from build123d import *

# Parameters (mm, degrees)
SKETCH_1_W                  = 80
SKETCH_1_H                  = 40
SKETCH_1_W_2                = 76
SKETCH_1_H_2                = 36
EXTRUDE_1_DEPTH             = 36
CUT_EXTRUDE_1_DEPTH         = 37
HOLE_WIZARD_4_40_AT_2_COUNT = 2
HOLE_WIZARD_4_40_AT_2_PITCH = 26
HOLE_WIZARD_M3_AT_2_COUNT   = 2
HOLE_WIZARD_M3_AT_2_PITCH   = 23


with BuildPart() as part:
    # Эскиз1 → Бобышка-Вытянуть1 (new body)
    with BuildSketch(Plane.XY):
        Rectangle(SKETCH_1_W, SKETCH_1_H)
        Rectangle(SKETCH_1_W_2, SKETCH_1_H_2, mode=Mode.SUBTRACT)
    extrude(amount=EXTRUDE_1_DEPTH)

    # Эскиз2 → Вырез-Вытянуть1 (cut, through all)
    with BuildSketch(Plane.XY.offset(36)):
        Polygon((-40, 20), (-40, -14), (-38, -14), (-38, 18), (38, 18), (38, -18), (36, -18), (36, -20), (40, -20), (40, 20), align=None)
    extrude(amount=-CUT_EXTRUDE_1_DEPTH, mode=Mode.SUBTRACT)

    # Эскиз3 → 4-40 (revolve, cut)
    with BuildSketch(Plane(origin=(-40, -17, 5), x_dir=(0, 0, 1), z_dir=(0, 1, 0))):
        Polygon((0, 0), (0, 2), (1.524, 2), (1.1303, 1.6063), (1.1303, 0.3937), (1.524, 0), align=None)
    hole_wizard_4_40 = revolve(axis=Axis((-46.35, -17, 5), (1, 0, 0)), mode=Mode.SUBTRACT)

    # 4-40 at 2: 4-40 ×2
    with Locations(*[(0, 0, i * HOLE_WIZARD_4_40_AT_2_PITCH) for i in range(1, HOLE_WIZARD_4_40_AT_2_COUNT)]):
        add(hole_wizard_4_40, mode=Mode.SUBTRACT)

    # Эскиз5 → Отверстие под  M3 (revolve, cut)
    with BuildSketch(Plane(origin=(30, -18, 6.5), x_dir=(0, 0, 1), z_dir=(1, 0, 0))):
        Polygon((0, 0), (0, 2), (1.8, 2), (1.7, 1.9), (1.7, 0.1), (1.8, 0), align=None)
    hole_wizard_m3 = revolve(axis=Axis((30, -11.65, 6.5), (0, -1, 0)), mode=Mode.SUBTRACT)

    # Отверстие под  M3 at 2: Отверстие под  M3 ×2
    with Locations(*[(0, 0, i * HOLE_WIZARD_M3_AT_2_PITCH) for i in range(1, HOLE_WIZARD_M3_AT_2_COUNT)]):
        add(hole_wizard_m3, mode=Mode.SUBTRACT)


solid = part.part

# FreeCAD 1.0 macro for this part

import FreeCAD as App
import Part
import Sketcher
Q = App.Units.Quantity

doc = App.newDocument("Part")
body = doc.addObject("PartDesign::Body", "Body")

# Sketch on XY plane
sketch1 = body.newObject("Sketcher::SketchObject", "Sketch")
sketch1.AttachmentSupport = (doc.getObject("XY_Plane"), [""])
sketch1.MapMode = "FlatFace"
sketch1.addGeometry(Part.LineSegment(App.Vector(-40, 20, 0), App.Vector(-40, -20, 0)), False)
sketch1.addGeometry(Part.LineSegment(App.Vector(-40, -20, 0), App.Vector(40, -20, 0)), False)
sketch1.addGeometry(Part.LineSegment(App.Vector(40, -20, 0), App.Vector(40, 20, 0)), False)
sketch1.addGeometry(Part.LineSegment(App.Vector(40, 20, 0), App.Vector(-40, 20, 0)), False)
sketch1.addGeometry(Part.LineSegment(App.Vector(38, -18, 0), App.Vector(-38, -18, 0)), False)
sketch1.addGeometry(Part.LineSegment(App.Vector(-38, -18, 0), App.Vector(-38, 18, 0)), False)
sketch1.addGeometry(Part.LineSegment(App.Vector(-38, 18, 0), App.Vector(38, 18, 0)), False)
sketch1.addGeometry(Part.LineSegment(App.Vector(38, 18, 0), App.Vector(38, -18, 0)), False)
sketch1.addConstraint(Sketcher.Constraint("Coincident", 0, 2, 1, 1))
sketch1.addConstraint(Sketcher.Constraint("Coincident", 1, 2, 2, 1))
sketch1.addConstraint(Sketcher.Constraint("Coincident", 2, 2, 3, 1))
sketch1.addConstraint(Sketcher.Constraint("Coincident", 3, 2, 0, 1))
sketch1.addConstraint(Sketcher.Constraint("Coincident", 4, 2, 5, 1))
sketch1.addConstraint(Sketcher.Constraint("Coincident", 5, 2, 6, 1))
sketch1.addConstraint(Sketcher.Constraint("Coincident", 6, 2, 7, 1))
sketch1.addConstraint(Sketcher.Constraint("Coincident", 7, 2, 4, 1))
sketch1.addConstraint(Sketcher.Constraint("Vertical", 0))
sketch1.addConstraint(Sketcher.Constraint("Horizontal", 1))
sketch1.addConstraint(Sketcher.Constraint("Vertical", 2))
sketch1.addConstraint(Sketcher.Constraint("Horizontal", 3))
sketch1.addConstraint(Sketcher.Constraint("Horizontal", 4))
sketch1.addConstraint(Sketcher.Constraint("Vertical", 5))
sketch1.addConstraint(Sketcher.Constraint("Horizontal", 6))
sketch1.addConstraint(Sketcher.Constraint("Vertical", 7))
sketch1.addConstraint(Sketcher.Constraint("Symmetric", 0, 2, 2, 2, -1, 1))
sketch1.addConstraint(Sketcher.Constraint("Symmetric", 4, 2, 6, 2, -1, 1))
sketch1.addConstraint(Sketcher.Constraint("DistanceX", 1, 1, 1, 2, Q("80 mm")))
sketch1.addConstraint(Sketcher.Constraint("DistanceX", 4, 2, 4, 1, Q("76 mm")))
sketch1.addConstraint(Sketcher.Constraint("DistanceY", 0, 2, 0, 1, Q("40 mm")))
sketch1.addConstraint(Sketcher.Constraint("DistanceY", 5, 1, 5, 2, Q("36 mm")))
pad1 = body.newObject("PartDesign::Pad", "Pad")
pad1.Profile = sketch1
pad1.Length = 36

# Sketch on XY plane
sketch2 = body.newObject("Sketcher::SketchObject", "Sketch001")
sketch2.AttachmentSupport = (doc.getObject("XY_Plane"), [""])
sketch2.MapMode = "FlatFace"
sketch2.AttachmentOffset = App.Placement(App.Vector(0, 0, 36), App.Rotation())
sketch2.addGeometry(Part.LineSegment(App.Vector(-40, 20, 0), App.Vector(-40, -14, 0)), False)
sketch2.addGeometry(Part.LineSegment(App.Vector(-40, -14, 0), App.Vector(-38, -14, 0)), False)
sketch2.addGeometry(Part.LineSegment(App.Vector(-38, -14, 0), App.Vector(-38, 18, 0)), False)
sketch2.addGeometry(Part.LineSegment(App.Vector(-38, 18, 0), App.Vector(38, 18, 0)), False)
sketch2.addGeometry(Part.LineSegment(App.Vector(38, 18, 0), App.Vector(38, -18, 0)), False)
sketch2.addGeometry(Part.LineSegment(App.Vector(38, -18, 0), App.Vector(36, -18, 0)), False)
sketch2.addGeometry(Part.LineSegment(App.Vector(36, -18, 0), App.Vector(36, -20, 0)), False)
sketch2.addGeometry(Part.LineSegment(App.Vector(36, -20, 0), App.Vector(40, -20, 0)), False)
sketch2.addGeometry(Part.LineSegment(App.Vector(40, -20, 0), App.Vector(40, 20, 0)), False)
sketch2.addGeometry(Part.LineSegment(App.Vector(40, 20, 0), App.Vector(-40, 20, 0)), False)
sketch2.addConstraint(Sketcher.Constraint("Coincident", 0, 2, 1, 1))
sketch2.addConstraint(Sketcher.Constraint("Coincident", 1, 2, 2, 1))
sketch2.addConstraint(Sketcher.Constraint("Coincident", 2, 2, 3, 1))
sketch2.addConstraint(Sketcher.Constraint("Coincident", 3, 2, 4, 1))
sketch2.addConstraint(Sketcher.Constraint("Coincident", 4, 2, 5, 1))
sketch2.addConstraint(Sketcher.Constraint("Coincident", 5, 2, 6, 1))
sketch2.addConstraint(Sketcher.Constraint("Coincident", 6, 2, 7, 1))
sketch2.addConstraint(Sketcher.Constraint("Coincident", 7, 2, 8, 1))
sketch2.addConstraint(Sketcher.Constraint("Coincident", 8, 2, 9, 1))
sketch2.addConstraint(Sketcher.Constraint("Coincident", 9, 2, 0, 1))
sketch2.addConstraint(Sketcher.Constraint("Vertical", 0))
sketch2.addConstraint(Sketcher.Constraint("Horizontal", 1))
sketch2.addConstraint(Sketcher.Constraint("Vertical", 2))
sketch2.addConstraint(Sketcher.Constraint("Horizontal", 3))
sketch2.addConstraint(Sketcher.Constraint("Vertical", 4))
sketch2.addConstraint(Sketcher.Constraint("Horizontal", 5))
sketch2.addConstraint(Sketcher.Constraint("Vertical", 6))
sketch2.addConstraint(Sketcher.Constraint("Horizontal", 7))
sketch2.addConstraint(Sketcher.Constraint("Vertical", 8))
sketch2.addConstraint(Sketcher.Constraint("Horizontal", 9))
sketch2.addConstraint(Sketcher.Constraint("Symmetric", 2, 2, 4, 2, -1, 1))
sketch2.addConstraint(Sketcher.Constraint("Symmetric", 7, 2, 9, 2, -1, 1))
sketch2.addConstraint(Sketcher.Constraint("Equal", 1, 5))
sketch2.addConstraint(Sketcher.Constraint("Equal", 5, 6))
sketch2.addConstraint(Sketcher.Constraint("DistanceX", 1, 1, 1, 2, Q("2 mm")))
sketch2.addConstraint(Sketcher.Constraint("DistanceX", 3, 1, 3, 2, Q("76 mm")))
sketch2.addConstraint(Sketcher.Constraint("DistanceY", 0, 2, 0, 1, Q("34 mm")))
sketch2.addConstraint(Sketcher.Constraint("DistanceY", 4, 2, 4, 1, Q("36 mm")))
pocket1 = body.newObject("PartDesign::Pocket", "Pocket")
pocket1.Profile = sketch2
pocket1.Type = "ThroughAll"

# Sketch on XZ plane
sketch3 = body.newObject("Sketcher::SketchObject", "Sketch002")
sketch3.AttachmentSupport = (doc.getObject("XZ_Plane"), [""])
sketch3.MapMode = "FlatFace"
sketch3.AttachmentOffset = App.Placement(App.Vector(0, 0, 17), App.Rotation())
sketch3.addGeometry(Part.LineSegment(App.Vector(-38, 5, 0), App.Vector(-40, 5, 0)), False)
sketch3.addGeometry(Part.LineSegment(App.Vector(-40, 5, 0), App.Vector(-40, 6.524, 0)), False)
sketch3.addGeometry(Part.LineSegment(App.Vector(-40, 6.524, 0), App.Vector(-39.6063, 6.1303, 0)), False)
sketch3.addGeometry(Part.LineSegment(App.Vector(-39.6063, 6.1303, 0), App.Vector(-38.3937, 6.1303, 0)), False)
sketch3.addGeometry(Part.LineSegment(App.Vector(-38.3937, 6.1303, 0), App.Vector(-38, 6.524, 0)), False)
sketch3.addGeometry(Part.LineSegment(App.Vector(-38, 6.524, 0), App.Vector(-38, 5, 0)), False)
sketch3.addGeometry(Part.LineSegment(App.Vector(-40, 5, 0), App.Vector(-38, 5, 0)), True)  # axis
sketch3.addConstraint(Sketcher.Constraint("Coincident", 0, 2, 1, 1))
sketch3.addConstraint(Sketcher.Constraint("Coincident", 1, 2, 2, 1))
sketch3.addConstraint(Sketcher.Constraint("Coincident", 2, 2, 3, 1))
sketch3.addConstraint(Sketcher.Constraint("Coincident", 3, 2, 4, 1))
sketch3.addConstraint(Sketcher.Constraint("Coincident", 4, 2, 5, 1))
sketch3.addConstraint(Sketcher.Constraint("Coincident", 5, 2, 0, 1))
sketch3.addConstraint(Sketcher.Constraint("Horizontal", 0))
sketch3.addConstraint(Sketcher.Constraint("Vertical", 1))
sketch3.addConstraint(Sketcher.Constraint("Horizontal", 3))
sketch3.addConstraint(Sketcher.Constraint("Vertical", 5))
sketch3.addConstraint(Sketcher.Constraint("Horizontal", 6))
sketch3.addConstraint(Sketcher.Constraint("Coincident", 6, 1, 0, 2))
sketch3.addConstraint(Sketcher.Constraint("Perpendicular", 2, 4))
sketch3.addConstraint(Sketcher.Constraint("Horizontal", 1, 2, 4, 2))
sketch3.addConstraint(Sketcher.Constraint("Vertical", 4, 2, 6, 2))
sketch3.addConstraint(Sketcher.Constraint("Equal", 2, 4))
sketch3.addConstraint(Sketcher.Constraint("DistanceX", 0, 2, 0, 1, Q("2 mm")))
sketch3.addConstraint(Sketcher.Constraint("DistanceX", 0, 2, -1, 1, Q("40 mm")))
sketch3.addConstraint(Sketcher.Constraint("DistanceY", -1, 1, 0, 2, Q("5 mm")))
sketch3.addConstraint(Sketcher.Constraint("DistanceY", 1, 1, 1, 2, Q("1.524 mm")))
sketch3.addConstraint(Sketcher.Constraint("DistanceX", 3, 1, 3, 2, Q("1.2126 mm")))
groove = body.newObject("PartDesign::Groove", "Groove")
groove.Profile = sketch3
groove.ReferenceAxis = (sketch3, ["Axis0"])
groove.Angle = 360
doc.recompute()

linearpattern = body.newObject("PartDesign::LinearPattern", "LinearPattern")
linearpattern.Originals = [groove]
linearpattern.Direction = (doc.getObject("Z_Axis"), [""])
linearpattern.Mode = "offset"
linearpattern.Offset = 26
linearpattern.Occurrences = 2
body.Tip = linearpattern

# Sketch on YZ plane
sketch4 = body.newObject("Sketcher::SketchObject", "Sketch003")
sketch4.AttachmentSupport = (doc.getObject("YZ_Plane"), [""])
sketch4.MapMode = "FlatFace"
sketch4.AttachmentOffset = App.Placement(App.Vector(0, 0, 30), App.Rotation())
sketch4.addGeometry(Part.LineSegment(App.Vector(-20, 6.5, 0), App.Vector(-18, 6.5, 0)), False)
sketch4.addGeometry(Part.LineSegment(App.Vector(-18, 6.5, 0), App.Vector(-18, 8.3, 0)), False)
sketch4.addGeometry(Part.LineSegment(App.Vector(-18, 8.3, 0), App.Vector(-18.1, 8.2, 0)), False)
sketch4.addGeometry(Part.LineSegment(App.Vector(-18.1, 8.2, 0), App.Vector(-19.9, 8.2, 0)), False)
sketch4.addGeometry(Part.LineSegment(App.Vector(-19.9, 8.2, 0), App.Vector(-20, 8.3, 0)), False)
sketch4.addGeometry(Part.LineSegment(App.Vector(-20, 8.3, 0), App.Vector(-20, 6.5, 0)), False)
sketch4.addGeometry(Part.LineSegment(App.Vector(-18, 6.5, 0), App.Vector(-20, 6.5, 0)), True)  # axis
sketch4.addConstraint(Sketcher.Constraint("Coincident", 0, 2, 1, 1))
sketch4.addConstraint(Sketcher.Constraint("Coincident", 1, 2, 2, 1))
sketch4.addConstraint(Sketcher.Constraint("Coincident", 2, 2, 3, 1))
sketch4.addConstraint(Sketcher.Constraint("Coincident", 3, 2, 4, 1))
sketch4.addConstraint(Sketcher.Constraint("Coincident", 4, 2, 5, 1))
sketch4.addConstraint(Sketcher.Constraint("Coincident", 5, 2, 0, 1))
sketch4.addConstraint(Sketcher.Constraint("Horizontal", 0))
sketch4.addConstraint(Sketcher.Constraint("Vertical", 1))
sketch4.addConstraint(Sketcher.Constraint("Horizontal", 3))
sketch4.addConstraint(Sketcher.Constraint("Vertical", 5))
sketch4.addConstraint(Sketcher.Constraint("Horizontal", 6))
sketch4.addConstraint(Sketcher.Constraint("Coincident", 6, 1, 0, 2))
sketch4.addConstraint(Sketcher.Constraint("Perpendicular", 2, 4))
sketch4.addConstraint(Sketcher.Constraint("Horizontal", 1, 2, 4, 2))
sketch4.addConstraint(Sketcher.Constraint("Vertical", 4, 2, 6, 2))
sketch4.addConstraint(Sketcher.Constraint("Equal", 3, 1))
sketch4.addConstraint(Sketcher.Constraint("Equal", 2, 4))
sketch4.addConstraint(Sketcher.Constraint("DistanceX", 0, 1, 0, 2, Q("2 mm")))
sketch4.addConstraint(Sketcher.Constraint("DistanceX", 3, 2, 3, 1, Q("1.8 mm")))
sketch4.addConstraint(Sketcher.Constraint("DistanceX", 0, 2, -1, 1, Q("18 mm")))
sketch4.addConstraint(Sketcher.Constraint("DistanceY", -1, 1, 0, 2, Q("6.5 mm")))
groove2 = body.newObject("PartDesign::Groove", "Groove001")
groove2.Profile = sketch4
groove2.ReferenceAxis = (sketch4, ["Axis0"])
groove2.Angle = 360
doc.recompute()

linearpattern2 = body.newObject("PartDesign::LinearPattern", "LinearPattern001")
linearpattern2.Originals = [groove2]
linearpattern2.Direction = (doc.getObject("Z_Axis"), [""])
linearpattern2.Mode = "offset"
linearpattern2.Offset = 23
linearpattern2.Occurrences = 2
body.Tip = linearpattern2

doc.recompute()
